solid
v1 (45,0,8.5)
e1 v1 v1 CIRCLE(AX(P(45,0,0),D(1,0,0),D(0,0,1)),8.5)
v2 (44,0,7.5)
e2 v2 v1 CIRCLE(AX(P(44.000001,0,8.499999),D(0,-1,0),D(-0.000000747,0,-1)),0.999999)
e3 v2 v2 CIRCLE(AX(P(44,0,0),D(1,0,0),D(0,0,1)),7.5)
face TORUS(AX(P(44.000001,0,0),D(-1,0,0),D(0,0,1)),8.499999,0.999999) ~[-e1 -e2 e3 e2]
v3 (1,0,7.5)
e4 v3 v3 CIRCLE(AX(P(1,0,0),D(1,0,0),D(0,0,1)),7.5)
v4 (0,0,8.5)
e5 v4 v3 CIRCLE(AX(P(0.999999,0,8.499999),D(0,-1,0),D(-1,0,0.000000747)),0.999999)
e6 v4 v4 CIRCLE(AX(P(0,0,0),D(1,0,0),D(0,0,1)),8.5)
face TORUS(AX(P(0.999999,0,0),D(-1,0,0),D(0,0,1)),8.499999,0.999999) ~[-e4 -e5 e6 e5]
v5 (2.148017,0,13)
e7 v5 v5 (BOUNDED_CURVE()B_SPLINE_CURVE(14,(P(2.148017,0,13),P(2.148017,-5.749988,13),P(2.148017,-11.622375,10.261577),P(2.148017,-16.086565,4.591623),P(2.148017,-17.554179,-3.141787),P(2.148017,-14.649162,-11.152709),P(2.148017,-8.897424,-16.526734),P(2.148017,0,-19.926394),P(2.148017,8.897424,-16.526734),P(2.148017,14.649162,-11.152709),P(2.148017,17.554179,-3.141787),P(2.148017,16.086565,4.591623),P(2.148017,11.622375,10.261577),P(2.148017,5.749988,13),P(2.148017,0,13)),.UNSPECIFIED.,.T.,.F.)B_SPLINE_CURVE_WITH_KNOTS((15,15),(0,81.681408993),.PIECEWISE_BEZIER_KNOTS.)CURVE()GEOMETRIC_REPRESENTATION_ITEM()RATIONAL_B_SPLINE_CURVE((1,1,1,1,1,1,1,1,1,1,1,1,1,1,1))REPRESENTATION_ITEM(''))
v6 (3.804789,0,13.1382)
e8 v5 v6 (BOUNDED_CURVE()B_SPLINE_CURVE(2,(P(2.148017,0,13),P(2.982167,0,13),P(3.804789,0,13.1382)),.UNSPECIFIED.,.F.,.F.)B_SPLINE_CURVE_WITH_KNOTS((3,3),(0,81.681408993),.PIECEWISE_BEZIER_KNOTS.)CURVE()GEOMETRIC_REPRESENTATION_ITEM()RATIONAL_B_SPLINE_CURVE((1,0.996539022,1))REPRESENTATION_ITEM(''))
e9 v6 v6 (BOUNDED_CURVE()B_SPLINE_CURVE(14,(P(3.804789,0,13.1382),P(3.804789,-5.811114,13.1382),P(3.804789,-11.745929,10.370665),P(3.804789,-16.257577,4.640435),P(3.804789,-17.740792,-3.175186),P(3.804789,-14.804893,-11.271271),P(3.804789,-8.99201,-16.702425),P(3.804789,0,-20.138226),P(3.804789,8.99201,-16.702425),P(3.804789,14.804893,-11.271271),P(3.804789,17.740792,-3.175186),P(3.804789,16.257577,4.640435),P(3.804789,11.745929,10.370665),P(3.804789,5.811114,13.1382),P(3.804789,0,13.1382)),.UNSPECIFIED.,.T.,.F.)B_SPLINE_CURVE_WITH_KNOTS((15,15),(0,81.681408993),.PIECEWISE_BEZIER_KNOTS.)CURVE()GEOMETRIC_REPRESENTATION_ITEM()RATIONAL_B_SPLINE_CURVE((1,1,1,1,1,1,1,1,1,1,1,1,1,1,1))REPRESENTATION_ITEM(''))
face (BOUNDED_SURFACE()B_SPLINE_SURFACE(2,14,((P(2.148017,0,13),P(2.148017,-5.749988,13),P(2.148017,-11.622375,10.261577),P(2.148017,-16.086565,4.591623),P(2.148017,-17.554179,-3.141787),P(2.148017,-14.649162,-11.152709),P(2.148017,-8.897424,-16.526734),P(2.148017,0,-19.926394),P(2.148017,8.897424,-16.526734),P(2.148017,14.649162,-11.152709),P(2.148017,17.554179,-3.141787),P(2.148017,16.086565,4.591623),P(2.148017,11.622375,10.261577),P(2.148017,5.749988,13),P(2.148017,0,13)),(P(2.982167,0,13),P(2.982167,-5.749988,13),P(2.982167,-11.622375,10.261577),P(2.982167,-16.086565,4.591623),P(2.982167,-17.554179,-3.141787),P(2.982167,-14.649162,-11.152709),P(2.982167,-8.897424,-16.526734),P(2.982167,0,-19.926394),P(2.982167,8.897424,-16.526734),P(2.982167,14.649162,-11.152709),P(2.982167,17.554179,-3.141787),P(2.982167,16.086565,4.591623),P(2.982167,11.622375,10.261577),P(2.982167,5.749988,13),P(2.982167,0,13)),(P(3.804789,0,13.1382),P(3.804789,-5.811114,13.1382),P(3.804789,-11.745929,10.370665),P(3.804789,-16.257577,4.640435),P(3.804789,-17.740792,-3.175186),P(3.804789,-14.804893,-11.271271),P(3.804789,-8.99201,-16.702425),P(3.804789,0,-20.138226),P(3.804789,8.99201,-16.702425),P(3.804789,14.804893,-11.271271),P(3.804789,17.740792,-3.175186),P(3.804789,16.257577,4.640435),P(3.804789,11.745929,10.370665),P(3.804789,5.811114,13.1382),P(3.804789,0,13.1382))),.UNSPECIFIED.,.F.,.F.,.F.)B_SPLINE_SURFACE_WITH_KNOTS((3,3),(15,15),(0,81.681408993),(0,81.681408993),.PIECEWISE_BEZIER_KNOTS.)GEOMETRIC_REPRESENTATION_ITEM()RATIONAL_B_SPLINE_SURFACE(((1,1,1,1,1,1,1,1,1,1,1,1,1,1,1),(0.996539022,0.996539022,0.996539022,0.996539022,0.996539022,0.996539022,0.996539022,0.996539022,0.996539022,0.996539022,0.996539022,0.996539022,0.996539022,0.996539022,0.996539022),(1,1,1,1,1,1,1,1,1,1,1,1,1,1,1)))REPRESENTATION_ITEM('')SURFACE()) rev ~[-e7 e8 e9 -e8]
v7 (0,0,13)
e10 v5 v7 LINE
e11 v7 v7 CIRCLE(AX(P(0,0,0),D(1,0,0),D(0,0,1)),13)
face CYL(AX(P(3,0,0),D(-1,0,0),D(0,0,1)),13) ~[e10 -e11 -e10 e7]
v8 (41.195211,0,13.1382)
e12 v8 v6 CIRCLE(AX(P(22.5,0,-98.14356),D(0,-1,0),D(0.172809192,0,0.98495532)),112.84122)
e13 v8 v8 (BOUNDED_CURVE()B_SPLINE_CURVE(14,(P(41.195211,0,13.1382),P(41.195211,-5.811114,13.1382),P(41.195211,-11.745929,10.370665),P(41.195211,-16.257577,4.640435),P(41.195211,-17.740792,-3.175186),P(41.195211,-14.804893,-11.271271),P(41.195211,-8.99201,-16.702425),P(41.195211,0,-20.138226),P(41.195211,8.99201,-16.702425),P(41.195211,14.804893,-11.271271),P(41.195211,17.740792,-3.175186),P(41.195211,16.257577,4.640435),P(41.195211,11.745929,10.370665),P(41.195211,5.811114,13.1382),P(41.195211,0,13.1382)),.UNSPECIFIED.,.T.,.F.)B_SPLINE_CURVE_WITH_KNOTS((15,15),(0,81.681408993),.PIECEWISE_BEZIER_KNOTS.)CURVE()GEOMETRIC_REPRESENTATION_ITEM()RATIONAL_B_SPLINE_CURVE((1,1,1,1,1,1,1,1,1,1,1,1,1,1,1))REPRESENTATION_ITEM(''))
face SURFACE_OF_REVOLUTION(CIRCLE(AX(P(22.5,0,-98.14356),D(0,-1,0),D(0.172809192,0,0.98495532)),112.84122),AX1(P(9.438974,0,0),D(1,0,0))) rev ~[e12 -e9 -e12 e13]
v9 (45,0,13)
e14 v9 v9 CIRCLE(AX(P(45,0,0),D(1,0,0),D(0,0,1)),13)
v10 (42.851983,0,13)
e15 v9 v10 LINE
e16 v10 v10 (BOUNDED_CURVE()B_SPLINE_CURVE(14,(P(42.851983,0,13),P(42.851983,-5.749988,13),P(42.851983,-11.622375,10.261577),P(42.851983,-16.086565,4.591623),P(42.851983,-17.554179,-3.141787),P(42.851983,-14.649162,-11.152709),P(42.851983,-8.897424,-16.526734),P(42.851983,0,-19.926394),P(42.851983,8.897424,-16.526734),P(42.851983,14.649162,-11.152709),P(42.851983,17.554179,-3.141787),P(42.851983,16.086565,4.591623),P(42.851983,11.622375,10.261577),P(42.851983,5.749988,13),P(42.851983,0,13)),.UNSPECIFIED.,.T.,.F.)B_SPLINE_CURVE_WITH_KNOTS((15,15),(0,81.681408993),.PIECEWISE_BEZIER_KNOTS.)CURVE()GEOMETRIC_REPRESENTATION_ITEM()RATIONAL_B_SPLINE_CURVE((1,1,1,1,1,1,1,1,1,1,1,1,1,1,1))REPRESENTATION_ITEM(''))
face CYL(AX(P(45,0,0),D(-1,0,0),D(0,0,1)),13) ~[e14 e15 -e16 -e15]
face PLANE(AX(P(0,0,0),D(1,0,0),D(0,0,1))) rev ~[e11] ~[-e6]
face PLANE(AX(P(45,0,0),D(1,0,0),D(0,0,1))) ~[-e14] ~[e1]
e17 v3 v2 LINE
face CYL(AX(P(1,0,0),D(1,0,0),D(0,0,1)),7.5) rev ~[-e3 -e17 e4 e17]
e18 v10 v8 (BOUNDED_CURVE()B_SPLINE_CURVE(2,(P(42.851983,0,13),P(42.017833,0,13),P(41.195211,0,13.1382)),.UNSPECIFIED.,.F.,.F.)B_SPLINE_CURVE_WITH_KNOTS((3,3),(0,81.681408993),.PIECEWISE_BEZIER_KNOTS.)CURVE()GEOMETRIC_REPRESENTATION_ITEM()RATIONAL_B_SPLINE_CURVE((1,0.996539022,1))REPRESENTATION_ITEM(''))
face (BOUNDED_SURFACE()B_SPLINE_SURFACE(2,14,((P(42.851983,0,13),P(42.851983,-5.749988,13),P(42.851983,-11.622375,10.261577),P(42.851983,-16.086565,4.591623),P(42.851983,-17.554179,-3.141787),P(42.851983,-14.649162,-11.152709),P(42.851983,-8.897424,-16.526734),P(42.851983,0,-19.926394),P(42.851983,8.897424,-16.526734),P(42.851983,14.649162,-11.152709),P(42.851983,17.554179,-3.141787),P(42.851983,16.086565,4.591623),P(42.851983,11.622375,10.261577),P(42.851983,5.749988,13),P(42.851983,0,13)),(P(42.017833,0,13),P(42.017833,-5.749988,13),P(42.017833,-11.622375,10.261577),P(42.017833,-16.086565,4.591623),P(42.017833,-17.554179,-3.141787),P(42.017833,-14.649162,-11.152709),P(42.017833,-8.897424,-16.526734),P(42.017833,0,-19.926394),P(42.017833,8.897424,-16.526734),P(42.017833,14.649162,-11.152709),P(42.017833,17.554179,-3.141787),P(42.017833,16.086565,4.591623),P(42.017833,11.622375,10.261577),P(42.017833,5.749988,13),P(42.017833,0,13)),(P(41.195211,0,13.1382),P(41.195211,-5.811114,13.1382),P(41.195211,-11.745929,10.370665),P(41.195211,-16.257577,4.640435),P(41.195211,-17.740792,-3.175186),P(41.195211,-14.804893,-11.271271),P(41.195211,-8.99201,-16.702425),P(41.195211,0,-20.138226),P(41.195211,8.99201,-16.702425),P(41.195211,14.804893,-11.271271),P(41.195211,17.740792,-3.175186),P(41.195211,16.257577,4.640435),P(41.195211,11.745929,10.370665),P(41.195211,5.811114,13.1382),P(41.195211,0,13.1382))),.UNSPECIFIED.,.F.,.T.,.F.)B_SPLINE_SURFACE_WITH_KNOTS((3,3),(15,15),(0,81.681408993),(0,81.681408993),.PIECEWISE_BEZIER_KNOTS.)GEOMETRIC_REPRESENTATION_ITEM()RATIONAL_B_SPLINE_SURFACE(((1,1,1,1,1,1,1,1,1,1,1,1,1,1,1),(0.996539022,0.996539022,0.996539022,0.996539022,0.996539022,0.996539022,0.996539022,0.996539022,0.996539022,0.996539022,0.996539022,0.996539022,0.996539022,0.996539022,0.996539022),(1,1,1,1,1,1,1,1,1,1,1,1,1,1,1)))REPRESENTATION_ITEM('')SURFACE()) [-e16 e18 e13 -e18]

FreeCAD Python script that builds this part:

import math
import FreeCAD as App
import Part
import Sketcher
from FreeCAD import Vector


def edges_at(feature, points):
    """Names of the edges that pass closest to the given points."""
    edges = feature.Shape.Edges
    near = lambda p: min(range(len(edges)), key=lambda i: edges[i].distToShape(Part.Vertex(*p))[0])
    return sorted({f"Edge{near(p) + 1}" for p in points})

doc = App.newDocument("Part")
body = doc.addObject("PartDesign::Body", "Body")

sketch1 = body.newObject("Sketcher::SketchObject", "Sketch")
sketch1.AttachmentSupport = (doc.getObject("XZ_Plane"), [""])
sketch1.MapMode = "FlatFace"
sketch1.addGeometry(Part.LineSegment(Vector(3, 13, 0), Vector(0, 13, 0)), False)
sketch1.addGeometry(Part.LineSegment(Vector(0, 13, 0), Vector(0, 8.5, 0)), False)
sketch1.addGeometry(Part.ArcOfCircle(Part.Circle(Vector(1, 8.5, 0), Vector(0, 0, 1), 1), math.radians(180), math.radians(270)), False)
sketch1.addGeometry(Part.LineSegment(Vector(1, 7.5, 0), Vector(44, 7.5, 0)), False)
sketch1.addGeometry(Part.ArcOfCircle(Part.Circle(Vector(44, 8.5, 0), Vector(0, 0, 1), 1), math.radians(-90), math.radians(0)), False)
sketch1.addGeometry(Part.LineSegment(Vector(45, 8.5, 0), Vector(45, 13, 0)), False)
sketch1.addGeometry(Part.LineSegment(Vector(45, 13, 0), Vector(42, 13, 0)), False)
sketch1.addGeometry(Part.ArcOfCircle(Part.Circle(Vector(22.5, -98.1, 0), Vector(0, 0, 1), 112.8), math.radians(80.05), math.radians(99.95)), False)
sketch1.addConstraint(Sketcher.Constraint("Coincident", 0, 2, 1, 1))
sketch1.addConstraint(Sketcher.Constraint("Tangent", 1, 2, 2, 1))
sketch1.addConstraint(Sketcher.Constraint("Tangent", 2, 2, 3, 1))
sketch1.addConstraint(Sketcher.Constraint("Tangent", 3, 2, 4, 1))
sketch1.addConstraint(Sketcher.Constraint("Tangent", 4, 2, 5, 1))
sketch1.addConstraint(Sketcher.Constraint("Coincident", 5, 2, 6, 1))
sketch1.addConstraint(Sketcher.Constraint("Coincident", 6, 2, 7, 1))
sketch1.addConstraint(Sketcher.Constraint("Coincident", 7, 2, 0, 1))
sketch1.addConstraint(Sketcher.Constraint("Horizontal", 0))
sketch1.addConstraint(Sketcher.Constraint("Vertical", 1))
sketch1.addConstraint(Sketcher.Constraint("Horizontal", 3))
sketch1.addConstraint(Sketcher.Constraint("Vertical", 5))
sketch1.addConstraint(Sketcher.Constraint("Horizontal", 6))
sketch1.addConstraint(Sketcher.Constraint("Equal", 2, 4))
sketch1.addConstraint(Sketcher.Constraint("PointOnObject", 0, 2, -2))
sketch1.addConstraint(Sketcher.Constraint("Horizontal", 0, 2, 5, 2))
sketch1.addConstraint(Sketcher.Constraint("Equal", 0, 6))
sketch1.addConstraint(Sketcher.Constraint("Radius", 2, 0.999999))
sketch1.addConstraint(Sketcher.Constraint("DistanceX", 0, 2, 0, 1, 3.0))
sketch1.addConstraint(Sketcher.Constraint("DistanceX", 3, 1, 3, 2, 43.0))
sketch1.addConstraint(Sketcher.Constraint("DistanceY", 1, 2, 1, 1, 4.5))
sketch1.addConstraint(Sketcher.Constraint("DistanceY", -1, 1, 0, 2, 13.0))
sketch1.addConstraint(Sketcher.Constraint("Radius", 7, 112.84122))
revolution = body.newObject("PartDesign::Revolution", "Revolution")
revolution.Profile = sketch1
revolution.ReferenceAxis = (sketch1, ["H_Axis"])
revolution.Angle = 360
doc.recompute()

fillet = body.newObject("PartDesign::Fillet", "Fillet")
fillet.Base = (revolution, edges_at(revolution, [(3, 0, -13), (42, 0, -13)]))
fillet.Radius = 10

doc.recompute()
